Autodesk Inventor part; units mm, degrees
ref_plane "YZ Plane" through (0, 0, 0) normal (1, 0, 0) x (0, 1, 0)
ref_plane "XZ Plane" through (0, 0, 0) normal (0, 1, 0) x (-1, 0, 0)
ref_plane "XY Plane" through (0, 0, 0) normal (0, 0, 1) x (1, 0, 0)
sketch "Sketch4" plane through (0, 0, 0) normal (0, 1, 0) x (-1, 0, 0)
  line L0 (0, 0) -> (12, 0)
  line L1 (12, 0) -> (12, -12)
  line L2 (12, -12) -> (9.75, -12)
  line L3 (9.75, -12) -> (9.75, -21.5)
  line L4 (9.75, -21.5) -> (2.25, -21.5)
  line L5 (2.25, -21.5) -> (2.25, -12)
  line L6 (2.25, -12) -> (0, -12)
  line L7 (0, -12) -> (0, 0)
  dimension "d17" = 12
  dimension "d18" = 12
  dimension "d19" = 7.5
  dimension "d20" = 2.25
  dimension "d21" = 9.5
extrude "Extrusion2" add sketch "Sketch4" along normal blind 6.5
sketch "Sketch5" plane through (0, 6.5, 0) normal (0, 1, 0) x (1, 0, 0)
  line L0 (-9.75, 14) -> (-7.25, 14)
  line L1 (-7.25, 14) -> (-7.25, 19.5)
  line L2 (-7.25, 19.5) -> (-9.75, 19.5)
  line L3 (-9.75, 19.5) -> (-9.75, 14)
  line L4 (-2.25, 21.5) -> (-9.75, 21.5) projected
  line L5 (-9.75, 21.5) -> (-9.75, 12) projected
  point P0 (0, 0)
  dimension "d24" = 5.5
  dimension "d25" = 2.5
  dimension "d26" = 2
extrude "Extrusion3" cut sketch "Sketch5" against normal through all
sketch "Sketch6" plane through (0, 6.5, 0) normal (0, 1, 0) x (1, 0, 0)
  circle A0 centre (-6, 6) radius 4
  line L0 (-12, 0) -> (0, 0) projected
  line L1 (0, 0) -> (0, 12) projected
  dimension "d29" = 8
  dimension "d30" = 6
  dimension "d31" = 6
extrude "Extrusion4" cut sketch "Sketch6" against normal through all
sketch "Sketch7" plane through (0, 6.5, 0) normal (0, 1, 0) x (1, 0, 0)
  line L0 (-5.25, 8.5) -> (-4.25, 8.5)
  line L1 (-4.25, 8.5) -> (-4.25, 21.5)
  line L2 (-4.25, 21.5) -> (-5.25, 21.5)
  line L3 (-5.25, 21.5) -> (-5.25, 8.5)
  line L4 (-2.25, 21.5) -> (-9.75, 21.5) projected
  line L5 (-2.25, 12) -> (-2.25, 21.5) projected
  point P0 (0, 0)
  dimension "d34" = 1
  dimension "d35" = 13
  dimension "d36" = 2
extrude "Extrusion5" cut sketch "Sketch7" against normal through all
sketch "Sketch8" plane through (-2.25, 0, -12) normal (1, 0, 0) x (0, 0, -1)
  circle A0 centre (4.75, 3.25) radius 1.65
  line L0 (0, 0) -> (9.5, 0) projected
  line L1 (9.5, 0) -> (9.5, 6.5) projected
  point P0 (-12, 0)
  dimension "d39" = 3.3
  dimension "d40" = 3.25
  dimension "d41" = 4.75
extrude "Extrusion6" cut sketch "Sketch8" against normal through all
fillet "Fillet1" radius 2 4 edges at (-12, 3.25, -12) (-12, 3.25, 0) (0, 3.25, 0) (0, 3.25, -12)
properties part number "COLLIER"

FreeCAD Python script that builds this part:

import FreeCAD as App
import Part
import Sketcher
Q = App.Units.Quantity


def edges_at(feature, points):
    """Names of the edges that pass closest to the given points."""
    edges = feature.Shape.Edges
    near = lambda p: min(range(len(edges)), key=lambda i: edges[i].distToShape(Part.Vertex(*p))[0])
    return sorted({f"Edge{near(p) + 1}" for p in points})

doc = App.newDocument("Part")
params = doc.addObject("Spreadsheet::Sheet", "Params")
for row, (alias, value) in enumerate([
    ("sketch1_width", "12 mm"),
    ("sketch1_width2", "7.5 mm"),
    ("sketch1_height", "9.5 mm"),
    ("pad1_length", "6.5 mm"),
    ("sketch2_width", "2.5 mm"),
    ("sketch2_height", "5.5 mm"),
    ("sketch3_diameter", "8 mm"),
    ("sketch4_width", "1 mm"),
    ("sketch4_height", "13 mm"),
    ("sketch5_diameter", "3.3 mm"),
    ("fillet_radius", "2 mm"),
], start=1):
    params.set(f"A{row}", alias)
    params.set(f"B{row}", "=" + value)
    params.setAlias(f"B{row}", alias)

body = doc.addObject("PartDesign::Body", "Body")

# Sketch on XZ plane
sketch1 = doc.addObject("Sketcher::SketchObject", "Sketch")
body.addObject(sketch1)
sketch1.AttachmentSupport = (doc.XZ_Plane, [""])
sketch1.MapMode = "FlatFace"
sketch1.addGeometry(Part.LineSegment(App.Vector(-12, 0, 0), App.Vector(0, 0, 0)), False)
sketch1.addGeometry(Part.LineSegment(App.Vector(0, 0, 0), App.Vector(0, -12, 0)), False)
sketch1.addGeometry(Part.LineSegment(App.Vector(0, -12, 0), App.Vector(-2.2, -12, 0)), False)
sketch1.addGeometry(Part.LineSegment(App.Vector(-2.2, -12, 0), App.Vector(-2.2, -21.5, 0)), False)
sketch1.addGeometry(Part.LineSegment(App.Vector(-2.2, -21.5, 0), App.Vector(-9.8, -21.5, 0)), False)
sketch1.addGeometry(Part.LineSegment(App.Vector(-9.8, -21.5, 0), App.Vector(-9.8, -12, 0)), False)
sketch1.addGeometry(Part.LineSegment(App.Vector(-9.8, -12, 0), App.Vector(-12, -12, 0)), False)
sketch1.addGeometry(Part.LineSegment(App.Vector(-12, -12, 0), App.Vector(-12, 0, 0)), False)
sketch1.addConstraint(Sketcher.Constraint("Coincident", 0, 2, 1, 1))
sketch1.addConstraint(Sketcher.Constraint("Coincident", 1, 2, 2, 1))
sketch1.addConstraint(Sketcher.Constraint("Coincident", 2, 2, 3, 1))
sketch1.addConstraint(Sketcher.Constraint("Coincident", 3, 2, 4, 1))
sketch1.addConstraint(Sketcher.Constraint("Coincident", 4, 2, 5, 1))
sketch1.addConstraint(Sketcher.Constraint("Coincident", 5, 2, 6, 1))
sketch1.addConstraint(Sketcher.Constraint("Coincident", 6, 2, 7, 1))
sketch1.addConstraint(Sketcher.Constraint("Coincident", 7, 2, 0, 1))
sketch1.addConstraint(Sketcher.Constraint("Horizontal", 0))
sketch1.addConstraint(Sketcher.Constraint("Vertical", 1))
sketch1.addConstraint(Sketcher.Constraint("Horizontal", 2))
sketch1.addConstraint(Sketcher.Constraint("Vertical", 3))
sketch1.addConstraint(Sketcher.Constraint("Horizontal", 4))
sketch1.addConstraint(Sketcher.Constraint("Vertical", 5))
sketch1.addConstraint(Sketcher.Constraint("Horizontal", 6))
sketch1.addConstraint(Sketcher.Constraint("Vertical", 7))
sketch1.addConstraint(Sketcher.Constraint("Coincident", 0, 2, -1, 1))
sketch1.addConstraint(Sketcher.Constraint("Horizontal", 2, 2, 5, 2))
sketch1.addConstraint(Sketcher.Constraint("Equal", 2, 6))
sketch1.addConstraint(Sketcher.Constraint("Equal", 0, 1))
sketch1.addConstraint(Sketcher.Constraint("DistanceX", 0, 1, 0, 2, Q("12 mm")))
sketch1.addConstraint(Sketcher.Constraint("DistanceX", 4, 2, 4, 1, Q("7.5 mm")))
sketch1.addConstraint(Sketcher.Constraint("DistanceY", 3, 2, 3, 1, Q("9.5 mm")))
sketch1.setExpression("Constraints[20]", "Params.sketch1_width")
sketch1.setExpression("Constraints[21]", "Params.sketch1_width2")
sketch1.setExpression("Constraints[22]", "Params.sketch1_height")
pad1 = doc.addObject("PartDesign::Pad", "Pad")
body.addObject(pad1)
pad1.Profile = sketch1
pad1.setExpression("Length", "Params.pad1_length")
pad1.Reversed = True

# Sketch on XZ plane
sketch2 = doc.addObject("Sketcher::SketchObject", "Sketch001")
body.addObject(sketch2)
sketch2.AttachmentSupport = (doc.XZ_Plane, [""])
sketch2.MapMode = "FlatFace"
sketch2.AttachmentOffset = App.Placement(App.Vector(0, 0, -6.5), App.Rotation())
sketch2.addGeometry(Part.LineSegment(App.Vector(-9.8, -19.5, 0), App.Vector(-9.8, -14, 0)), False)
sketch2.addGeometry(Part.LineSegment(App.Vector(-9.8, -14, 0), App.Vector(-7.2, -14, 0)), False)
sketch2.addGeometry(Part.LineSegment(App.Vector(-7.2, -14, 0), App.Vector(-7.2, -19.5, 0)), False)
sketch2.addGeometry(Part.LineSegment(App.Vector(-7.2, -19.5, 0), App.Vector(-9.8, -19.5, 0)), False)
sketch2.addConstraint(Sketcher.Constraint("Coincident", 0, 2, 1, 1))
sketch2.addConstraint(Sketcher.Constraint("Coincident", 1, 2, 2, 1))
sketch2.addConstraint(Sketcher.Constraint("Coincident", 2, 2, 3, 1))
sketch2.addConstraint(Sketcher.Constraint("Coincident", 3, 2, 0, 1))
sketch2.addConstraint(Sketcher.Constraint("Vertical", 0))
sketch2.addConstraint(Sketcher.Constraint("Horizontal", 1))
sketch2.addConstraint(Sketcher.Constraint("Vertical", 2))
sketch2.addConstraint(Sketcher.Constraint("Horizontal", 3))
sketch2.addConstraint(Sketcher.Constraint("DistanceX", 1, 1, 1, 2, Q("2.5 mm")))
sketch2.addConstraint(Sketcher.Constraint("DistanceY", 0, 1, 0, 2, Q("5.5 mm")))
sketch2.addConstraint(Sketcher.Constraint("DistanceY", 0, 2, -1, 1, Q("14 mm")))
sketch2.addConstraint(Sketcher.Constraint("DistanceX", 0, 2, -1, 1, Q("9.75 mm")))
sketch2.setExpression("Constraints[8]", "Params.sketch2_width")
sketch2.setExpression("Constraints[9]", "Params.sketch2_height")
pocket1 = doc.addObject("PartDesign::Pocket", "Pocket")
body.addObject(pocket1)
pocket1.Profile = sketch2
pocket1.Type = "ThroughAll"
pocket1.Reversed = True

# Sketch on XZ plane
sketch3 = doc.addObject("Sketcher::SketchObject", "Sketch002")
body.addObject(sketch3)
sketch3.AttachmentSupport = (doc.XZ_Plane, [""])
sketch3.MapMode = "FlatFace"
sketch3.AttachmentOffset = App.Placement(App.Vector(0, 0, -6.5), App.Rotation())
sketch3.addGeometry(Part.Circle(App.Vector(-6, -6, 0), App.Vector(0, 0, 1), 4), False)
sketch3.addConstraint(Sketcher.Constraint("Diameter", 0, Q("8 mm")))
sketch3.addConstraint(Sketcher.Constraint("DistanceX", 0, 3, -1, 1, Q("6 mm")))
sketch3.addConstraint(Sketcher.Constraint("DistanceY", 0, 3, -1, 1, Q("6 mm")))
sketch3.setExpression("Constraints[0]", "Params.sketch3_diameter")
pocket2 = doc.addObject("PartDesign::Pocket", "Pocket001")
body.addObject(pocket2)
pocket2.Profile = sketch3
pocket2.Type = "ThroughAll"
pocket2.Reversed = True

# Sketch on XZ plane
sketch4 = doc.addObject("Sketcher::SketchObject", "Sketch003")
body.addObject(sketch4)
sketch4.AttachmentSupport = (doc.XZ_Plane, [""])
sketch4.MapMode = "FlatFace"
sketch4.AttachmentOffset = App.Placement(App.Vector(0, 0, -6.5), App.Rotation())
sketch4.addGeometry(Part.LineSegment(App.Vector(-5.2, -21.5, 0), App.Vector(-5.2, -8.5, 0)), False)
sketch4.addGeometry(Part.LineSegment(App.Vector(-5.2, -8.5, 0), App.Vector(-4.2, -8.5, 0)), False)
sketch4.addGeometry(Part.LineSegment(App.Vector(-4.2, -8.5, 0), App.Vector(-4.2, -21.5, 0)), False)
sketch4.addGeometry(Part.LineSegment(App.Vector(-4.2, -21.5, 0), App.Vector(-5.2, -21.5, 0)), False)
sketch4.addConstraint(Sketcher.Constraint("Coincident", 0, 2, 1, 1))
sketch4.addConstraint(Sketcher.Constraint("Coincident", 1, 2, 2, 1))
sketch4.addConstraint(Sketcher.Constraint("Coincident", 2, 2, 3, 1))
sketch4.addConstraint(Sketcher.Constraint("Coincident", 3, 2, 0, 1))
sketch4.addConstraint(Sketcher.Constraint("Vertical", 0))
sketch4.addConstraint(Sketcher.Constraint("Horizontal", 1))
sketch4.addConstraint(Sketcher.Constraint("Vertical", 2))
sketch4.addConstraint(Sketcher.Constraint("Horizontal", 3))
sketch4.addConstraint(Sketcher.Constraint("DistanceX", 1, 1, 1, 2, Q("1 mm")))
sketch4.addConstraint(Sketcher.Constraint("DistanceY", 0, 1, 0, 2, Q("13 mm")))
sketch4.addConstraint(Sketcher.Constraint("DistanceY", 0, 2, -1, 1, Q("8.5 mm")))
sketch4.addConstraint(Sketcher.Constraint("DistanceX", 0, 2, -1, 1, Q("5.25 mm")))
sketch4.setExpression("Constraints[8]", "Params.sketch4_width")
sketch4.setExpression("Constraints[9]", "Params.sketch4_height")
pocket3 = doc.addObject("PartDesign::Pocket", "Pocket002")
body.addObject(pocket3)
pocket3.Profile = sketch4
pocket3.Type = "ThroughAll"
pocket3.Reversed = True

# Sketch on YZ plane
sketch5 = doc.addObject("Sketcher::SketchObject", "Sketch004")
body.addObject(sketch5)
sketch5.AttachmentSupport = (doc.YZ_Plane, [""])
sketch5.MapMode = "FlatFace"
sketch5.AttachmentOffset = App.Placement(App.Vector(0, 0, -2.25), App.Rotation())
sketch5.addGeometry(Part.Circle(App.Vector(3.2, -16.8, 0), App.Vector(0, 0, 1), 1.6), False)
sketch5.addConstraint(Sketcher.Constraint("Diameter", 0, Q("3.3 mm")))
sketch5.addConstraint(Sketcher.Constraint("DistanceX", -1, 1, 0, 3, Q("3.25 mm")))
sketch5.addConstraint(Sketcher.Constraint("DistanceY", 0, 3, -1, 1, Q("16.75 mm")))
sketch5.setExpression("Constraints[0]", "Params.sketch5_diameter")
pocket4 = doc.addObject("PartDesign::Pocket", "Pocket003")
body.addObject(pocket4)
pocket4.Profile = sketch5
pocket4.Type = "ThroughAll"
doc.recompute()

fillet = doc.addObject("PartDesign::Fillet", "Fillet")
body.addObject(fillet)
fillet.Base = (pocket4, edges_at(pocket4, [
    (-12, 3.25, -12),
    (-12, 3.25, 0),
    (0, 3.25, 0),
    (0, 3.25, -12),
]))
fillet.setExpression("Radius", "Params.fillet_radius")

doc.recompute()
